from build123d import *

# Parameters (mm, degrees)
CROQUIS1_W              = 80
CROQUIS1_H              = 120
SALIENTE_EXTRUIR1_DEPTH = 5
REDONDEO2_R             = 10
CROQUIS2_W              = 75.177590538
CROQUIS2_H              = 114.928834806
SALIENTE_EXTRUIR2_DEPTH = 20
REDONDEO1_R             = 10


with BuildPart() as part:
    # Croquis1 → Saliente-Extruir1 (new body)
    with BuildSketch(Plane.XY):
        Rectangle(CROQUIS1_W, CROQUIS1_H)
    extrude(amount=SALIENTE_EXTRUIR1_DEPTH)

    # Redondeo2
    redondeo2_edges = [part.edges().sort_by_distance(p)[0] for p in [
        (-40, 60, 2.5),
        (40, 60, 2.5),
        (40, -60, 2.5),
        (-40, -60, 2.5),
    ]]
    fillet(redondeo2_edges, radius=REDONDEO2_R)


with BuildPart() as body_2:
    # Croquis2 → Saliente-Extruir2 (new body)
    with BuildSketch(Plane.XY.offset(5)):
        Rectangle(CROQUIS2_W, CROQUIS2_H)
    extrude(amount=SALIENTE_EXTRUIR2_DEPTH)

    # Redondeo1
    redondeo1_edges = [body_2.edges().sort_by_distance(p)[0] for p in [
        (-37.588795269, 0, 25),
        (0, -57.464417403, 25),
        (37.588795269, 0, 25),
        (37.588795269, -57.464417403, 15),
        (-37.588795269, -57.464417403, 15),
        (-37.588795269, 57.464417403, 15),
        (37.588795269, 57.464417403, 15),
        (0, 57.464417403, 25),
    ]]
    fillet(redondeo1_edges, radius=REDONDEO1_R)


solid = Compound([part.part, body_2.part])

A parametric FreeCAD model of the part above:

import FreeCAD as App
import Part
import Sketcher
Q = App.Units.Quantity


def edges_at(feature, points):
    """Names of the edges that pass closest to the given points."""
    edges = feature.Shape.Edges
    near = lambda p: min(range(len(edges)), key=lambda i: edges[i].distToShape(Part.Vertex(*p))[0])
    return sorted({f"Edge{near(p) + 1}" for p in points})


def add_polygon(sketch, points):
    """Adds a closed chain of lines whose ends are joined by coincident constraints."""
    first, n = sketch.GeometryCount, len(points)
    for a, b in zip(points, points[1:] + points[:1]):
        sketch.addGeometry(Part.LineSegment(App.Vector(*a, 0), App.Vector(*b, 0)), False)
    for i in range(n):
        sketch.addConstraint(Sketcher.Constraint("Coincident", first + i, 2, first + (i + 1) % n, 1))

doc = App.newDocument("Part")
body = doc.addObject("PartDesign::Body", "Body")

# Sketch on XY plane
sketch1 = doc.addObject("Sketcher::SketchObject", "Sketch")
body.addObject(sketch1)
sketch1.AttachmentSupport = (doc.XY_Plane, [""])
sketch1.MapMode = "FlatFace"
add_polygon(sketch1, [(-40, 60), (-40, -60), (40, -60), (40, 60)])  # lines 0-3
sketch1.addConstraint(Sketcher.Constraint("Vertical", 0))
sketch1.addConstraint(Sketcher.Constraint("Horizontal", 1))
sketch1.addConstraint(Sketcher.Constraint("Vertical", 2))
sketch1.addConstraint(Sketcher.Constraint("Horizontal", 3))
sketch1.addConstraint(Sketcher.Constraint("Symmetric", 0, 2, 2, 2, -1, 1))
sketch1.addConstraint(Sketcher.Constraint("DistanceX", 1, 1, 1, 2, Q("80 mm")))
sketch1.addConstraint(Sketcher.Constraint("DistanceY", 0, 2, 0, 1, Q("120 mm")))
pad1 = doc.addObject("PartDesign::Pad", "Pad")
body.addObject(pad1)
pad1.Profile = sketch1
pad1.Length = 5
doc.recompute()

fillet = doc.addObject("PartDesign::Fillet", "Fillet")
body.addObject(fillet)
fillet.Base = (pad1, edges_at(pad1, [
    (-40, 60, 2.5),
    (40, 60, 2.5),
    (40, -60, 2.5),
    (-40, -60, 2.5),
]))
fillet.Radius = 10
body2 = doc.addObject("PartDesign::Body", "Body001")

# Sketch on XY plane
sketch2 = doc.addObject("Sketcher::SketchObject", "Sketch001")
body2.addObject(sketch2)
sketch2.AttachmentSupport = (doc.getObject("XY_Plane001"), [""])
sketch2.MapMode = "FlatFace"
sketch2.AttachmentOffset = App.Placement(App.Vector(0, 0, 5), App.Rotation())
add_polygon(sketch2, [(-38, 57), (-38, -57), (38, -57), (38, 57)])  # lines 0-3
sketch2.addConstraint(Sketcher.Constraint("Vertical", 0))
sketch2.addConstraint(Sketcher.Constraint("Horizontal", 1))
sketch2.addConstraint(Sketcher.Constraint("Vertical", 2))
sketch2.addConstraint(Sketcher.Constraint("Horizontal", 3))
sketch2.addConstraint(Sketcher.Constraint("Symmetric", 0, 2, 2, 2, -1, 1))
sketch2.addConstraint(Sketcher.Constraint("DistanceX", 1, 1, 1, 2, Q("75.177591 mm")))
sketch2.addConstraint(Sketcher.Constraint("DistanceY", 0, 2, 0, 1, Q("114.928835 mm")))
pad2 = doc.addObject("PartDesign::Pad", "Pad001")
body2.addObject(pad2)
pad2.Profile = sketch2
pad2.Length = 20
doc.recompute()

fillet2 = doc.addObject("PartDesign::Fillet", "Fillet001")
body2.addObject(fillet2)
fillet2.Base = (pad2, edges_at(pad2, [
    (-37.589, 0, 25),
    (0, -57.464, 25),
    (37.589, 0, 25),
    (37.589, -57.464, 15),
    (-37.589, -57.464, 15),
    (-37.589, 57.464, 15),
    (37.589, 57.464, 15),
    (0, 57.464, 25),
]))
fillet2.Radius = 10

doc.recompute()
